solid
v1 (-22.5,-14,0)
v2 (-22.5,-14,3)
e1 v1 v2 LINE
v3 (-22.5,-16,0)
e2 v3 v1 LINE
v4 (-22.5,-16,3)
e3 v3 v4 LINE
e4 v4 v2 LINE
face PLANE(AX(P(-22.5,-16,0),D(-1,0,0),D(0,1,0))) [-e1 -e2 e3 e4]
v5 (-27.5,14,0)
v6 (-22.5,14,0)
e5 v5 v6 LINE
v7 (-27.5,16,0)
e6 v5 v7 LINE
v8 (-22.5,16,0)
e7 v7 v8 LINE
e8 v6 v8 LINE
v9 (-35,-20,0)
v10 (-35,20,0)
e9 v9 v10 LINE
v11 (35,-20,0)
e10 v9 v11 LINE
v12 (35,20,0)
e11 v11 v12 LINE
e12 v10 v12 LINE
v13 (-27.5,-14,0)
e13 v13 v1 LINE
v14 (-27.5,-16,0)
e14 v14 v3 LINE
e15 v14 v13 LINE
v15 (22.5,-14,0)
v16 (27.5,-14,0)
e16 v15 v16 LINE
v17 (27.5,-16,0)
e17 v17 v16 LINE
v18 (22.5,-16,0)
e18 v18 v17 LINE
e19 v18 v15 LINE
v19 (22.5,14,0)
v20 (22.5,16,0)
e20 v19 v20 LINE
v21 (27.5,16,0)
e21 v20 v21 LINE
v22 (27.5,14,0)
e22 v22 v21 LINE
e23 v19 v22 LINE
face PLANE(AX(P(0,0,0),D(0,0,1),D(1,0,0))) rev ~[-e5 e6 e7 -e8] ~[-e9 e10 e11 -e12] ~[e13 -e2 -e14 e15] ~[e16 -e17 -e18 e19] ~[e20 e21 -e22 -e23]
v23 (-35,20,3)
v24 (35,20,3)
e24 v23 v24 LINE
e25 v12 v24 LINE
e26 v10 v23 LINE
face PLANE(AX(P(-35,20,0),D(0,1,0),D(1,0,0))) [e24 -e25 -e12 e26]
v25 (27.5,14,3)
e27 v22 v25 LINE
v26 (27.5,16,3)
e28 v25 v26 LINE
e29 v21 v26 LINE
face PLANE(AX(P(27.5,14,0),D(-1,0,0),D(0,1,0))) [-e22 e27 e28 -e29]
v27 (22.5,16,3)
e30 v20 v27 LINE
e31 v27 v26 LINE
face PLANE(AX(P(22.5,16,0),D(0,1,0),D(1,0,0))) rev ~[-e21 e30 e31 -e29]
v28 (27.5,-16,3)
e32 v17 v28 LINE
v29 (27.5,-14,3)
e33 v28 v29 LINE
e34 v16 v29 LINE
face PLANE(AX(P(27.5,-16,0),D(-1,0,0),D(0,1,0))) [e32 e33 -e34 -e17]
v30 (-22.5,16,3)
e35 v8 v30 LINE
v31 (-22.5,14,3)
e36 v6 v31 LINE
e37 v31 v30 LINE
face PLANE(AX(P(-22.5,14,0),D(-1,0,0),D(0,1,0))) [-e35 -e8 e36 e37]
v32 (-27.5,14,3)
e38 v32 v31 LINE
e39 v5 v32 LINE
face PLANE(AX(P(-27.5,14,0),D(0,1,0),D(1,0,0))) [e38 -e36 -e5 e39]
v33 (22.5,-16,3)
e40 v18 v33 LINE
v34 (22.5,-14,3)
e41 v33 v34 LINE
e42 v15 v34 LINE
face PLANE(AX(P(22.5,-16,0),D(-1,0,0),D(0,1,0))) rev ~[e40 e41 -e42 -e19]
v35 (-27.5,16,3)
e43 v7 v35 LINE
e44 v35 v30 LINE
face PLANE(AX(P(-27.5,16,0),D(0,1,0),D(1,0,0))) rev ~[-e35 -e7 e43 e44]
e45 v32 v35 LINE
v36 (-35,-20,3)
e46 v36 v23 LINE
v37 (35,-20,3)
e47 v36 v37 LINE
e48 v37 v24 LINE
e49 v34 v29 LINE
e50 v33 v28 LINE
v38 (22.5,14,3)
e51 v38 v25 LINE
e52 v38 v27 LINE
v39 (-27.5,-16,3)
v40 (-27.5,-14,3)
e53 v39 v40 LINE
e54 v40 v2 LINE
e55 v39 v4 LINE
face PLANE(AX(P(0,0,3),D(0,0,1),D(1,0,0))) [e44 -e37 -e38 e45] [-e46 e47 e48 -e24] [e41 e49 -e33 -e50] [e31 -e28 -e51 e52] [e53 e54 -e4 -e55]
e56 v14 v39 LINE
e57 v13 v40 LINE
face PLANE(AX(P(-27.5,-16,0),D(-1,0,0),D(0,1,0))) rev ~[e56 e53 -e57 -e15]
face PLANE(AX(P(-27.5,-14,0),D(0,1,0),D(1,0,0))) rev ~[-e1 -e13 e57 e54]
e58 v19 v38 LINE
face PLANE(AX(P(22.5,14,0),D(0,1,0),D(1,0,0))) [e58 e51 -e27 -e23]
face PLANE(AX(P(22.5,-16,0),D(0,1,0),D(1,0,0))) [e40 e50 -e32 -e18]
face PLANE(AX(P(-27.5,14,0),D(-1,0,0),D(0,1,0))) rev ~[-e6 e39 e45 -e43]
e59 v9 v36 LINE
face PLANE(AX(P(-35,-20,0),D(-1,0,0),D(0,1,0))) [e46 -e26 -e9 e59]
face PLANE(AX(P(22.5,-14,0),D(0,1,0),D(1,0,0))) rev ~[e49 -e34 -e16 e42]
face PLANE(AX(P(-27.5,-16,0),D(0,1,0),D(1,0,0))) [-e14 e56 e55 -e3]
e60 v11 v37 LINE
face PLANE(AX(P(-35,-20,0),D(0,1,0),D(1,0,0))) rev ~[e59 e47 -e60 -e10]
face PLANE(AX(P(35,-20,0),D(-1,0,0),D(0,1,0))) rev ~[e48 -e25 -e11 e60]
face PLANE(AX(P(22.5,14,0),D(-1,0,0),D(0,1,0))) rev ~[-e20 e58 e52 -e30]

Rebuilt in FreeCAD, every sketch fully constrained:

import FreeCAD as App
import Part
import Sketcher
from FreeCAD import Vector

doc = App.newDocument("Part")
body = doc.addObject("PartDesign::Body", "Body")

sketch1 = body.newObject("Sketcher::SketchObject", "Sketch")
sketch1.AttachmentSupport = (doc.getObject("XY_Plane"), [""])
sketch1.MapMode = "FlatFace"
sketch1.addGeometry([
    Part.LineSegment(Vector(-35, 20, 0), Vector(-35, -20, 0)),
    Part.LineSegment(Vector(-35, -20, 0), Vector(35, -20, 0)),
    Part.LineSegment(Vector(35, -20, 0), Vector(35, 20, 0)),
    Part.LineSegment(Vector(35, 20, 0), Vector(-35, 20, 0)),
    Part.LineSegment(Vector(-22.5, -16, 0), Vector(-27.5, -16, 0)),
    Part.LineSegment(Vector(-27.5, -16, 0), Vector(-27.5, -14, 0)),
    Part.LineSegment(Vector(-27.5, -14, 0), Vector(-22.5, -14, 0)),
    Part.LineSegment(Vector(-22.5, -14, 0), Vector(-22.5, -16, 0)),
    Part.LineSegment(Vector(27.5, -16, 0), Vector(22.5, -16, 0)),
    Part.LineSegment(Vector(22.5, -16, 0), Vector(22.5, -14, 0)),
    Part.LineSegment(Vector(22.5, -14, 0), Vector(27.5, -14, 0)),
    Part.LineSegment(Vector(27.5, -14, 0), Vector(27.5, -16, 0)),
    Part.LineSegment(Vector(-22.5, 14, 0), Vector(-27.5, 14, 0)),
    Part.LineSegment(Vector(-27.5, 14, 0), Vector(-27.5, 16, 0)),
    Part.LineSegment(Vector(-27.5, 16, 0), Vector(-22.5, 16, 0)),
    Part.LineSegment(Vector(-22.5, 16, 0), Vector(-22.5, 14, 0)),
    Part.LineSegment(Vector(27.5, 14, 0), Vector(22.5, 14, 0)),
    Part.LineSegment(Vector(22.5, 14, 0), Vector(22.5, 16, 0)),
    Part.LineSegment(Vector(22.5, 16, 0), Vector(27.5, 16, 0)),
    Part.LineSegment(Vector(27.5, 16, 0), Vector(27.5, 14, 0)),
], False)
sketch1.addConstraint([
    Sketcher.Constraint("Coincident", 0, 2, 1, 1),
    Sketcher.Constraint("Coincident", 1, 2, 2, 1),
    Sketcher.Constraint("Coincident", 2, 2, 3, 1),
    Sketcher.Constraint("Coincident", 3, 2, 0, 1),
    Sketcher.Constraint("Coincident", 4, 2, 5, 1),
    Sketcher.Constraint("Coincident", 5, 2, 6, 1),
    Sketcher.Constraint("Coincident", 6, 2, 7, 1),
    Sketcher.Constraint("Coincident", 7, 2, 4, 1),
    Sketcher.Constraint("Coincident", 8, 2, 9, 1),
    Sketcher.Constraint("Coincident", 9, 2, 10, 1),
    Sketcher.Constraint("Coincident", 10, 2, 11, 1),
    Sketcher.Constraint("Coincident", 11, 2, 8, 1),
    Sketcher.Constraint("Coincident", 12, 2, 13, 1),
    Sketcher.Constraint("Coincident", 13, 2, 14, 1),
    Sketcher.Constraint("Coincident", 14, 2, 15, 1),
    Sketcher.Constraint("Coincident", 15, 2, 12, 1),
    Sketcher.Constraint("Coincident", 16, 2, 17, 1),
    Sketcher.Constraint("Coincident", 17, 2, 18, 1),
    Sketcher.Constraint("Coincident", 18, 2, 19, 1),
    Sketcher.Constraint("Coincident", 19, 2, 16, 1),
    Sketcher.Constraint("Vertical", 0),
    Sketcher.Constraint("Horizontal", 1),
    Sketcher.Constraint("Vertical", 2),
    Sketcher.Constraint("Horizontal", 3),
    Sketcher.Constraint("Horizontal", 4),
    Sketcher.Constraint("Vertical", 5),
    Sketcher.Constraint("Horizontal", 6),
    Sketcher.Constraint("Vertical", 7),
    Sketcher.Constraint("Horizontal", 8),
    Sketcher.Constraint("Vertical", 9),
    Sketcher.Constraint("Horizontal", 10),
    Sketcher.Constraint("Vertical", 11),
    Sketcher.Constraint("Horizontal", 12),
    Sketcher.Constraint("Vertical", 13),
    Sketcher.Constraint("Horizontal", 14),
    Sketcher.Constraint("Vertical", 15),
    Sketcher.Constraint("Horizontal", 16),
    Sketcher.Constraint("Vertical", 17),
    Sketcher.Constraint("Horizontal", 18),
    Sketcher.Constraint("Vertical", 19),
    Sketcher.Constraint("Symmetric", 0, 2, 2, 2, -1, 1),
    Sketcher.Constraint("Symmetric", 10, 2, 12, 2, -1, 1),
    Sketcher.Constraint("Symmetric", 8, 2, 14, 2, -1, 1),
    Sketcher.Constraint("Symmetric", 6, 2, 16, 2, -1, 1),
    Sketcher.Constraint("Symmetric", 4, 2, 18, 2, -1, 1),
    Sketcher.Constraint("Symmetric", 7, 2, 8, 2, -2),
    Sketcher.Constraint("Symmetric", 5, 2, 10, 2, -2),
    Sketcher.Constraint("DistanceX", 1, 1, 1, 2, 70.0),
    Sketcher.Constraint("DistanceX", 4, 2, 4, 1, 5.0),
    Sketcher.Constraint("DistanceY", 0, 2, 0, 1, 40.0),
    Sketcher.Constraint("DistanceY", 5, 1, 5, 2, 2.0),
    Sketcher.Constraint("DistanceY", 4, 2, -1, 1, 16.0),
    Sketcher.Constraint("DistanceX", 7, 2, 8, 2, 45.0),
])
pad1 = body.newObject("PartDesign::Pad", "Pad")
pad1.Profile = sketch1
pad1.Length = 3

doc.recompute()
